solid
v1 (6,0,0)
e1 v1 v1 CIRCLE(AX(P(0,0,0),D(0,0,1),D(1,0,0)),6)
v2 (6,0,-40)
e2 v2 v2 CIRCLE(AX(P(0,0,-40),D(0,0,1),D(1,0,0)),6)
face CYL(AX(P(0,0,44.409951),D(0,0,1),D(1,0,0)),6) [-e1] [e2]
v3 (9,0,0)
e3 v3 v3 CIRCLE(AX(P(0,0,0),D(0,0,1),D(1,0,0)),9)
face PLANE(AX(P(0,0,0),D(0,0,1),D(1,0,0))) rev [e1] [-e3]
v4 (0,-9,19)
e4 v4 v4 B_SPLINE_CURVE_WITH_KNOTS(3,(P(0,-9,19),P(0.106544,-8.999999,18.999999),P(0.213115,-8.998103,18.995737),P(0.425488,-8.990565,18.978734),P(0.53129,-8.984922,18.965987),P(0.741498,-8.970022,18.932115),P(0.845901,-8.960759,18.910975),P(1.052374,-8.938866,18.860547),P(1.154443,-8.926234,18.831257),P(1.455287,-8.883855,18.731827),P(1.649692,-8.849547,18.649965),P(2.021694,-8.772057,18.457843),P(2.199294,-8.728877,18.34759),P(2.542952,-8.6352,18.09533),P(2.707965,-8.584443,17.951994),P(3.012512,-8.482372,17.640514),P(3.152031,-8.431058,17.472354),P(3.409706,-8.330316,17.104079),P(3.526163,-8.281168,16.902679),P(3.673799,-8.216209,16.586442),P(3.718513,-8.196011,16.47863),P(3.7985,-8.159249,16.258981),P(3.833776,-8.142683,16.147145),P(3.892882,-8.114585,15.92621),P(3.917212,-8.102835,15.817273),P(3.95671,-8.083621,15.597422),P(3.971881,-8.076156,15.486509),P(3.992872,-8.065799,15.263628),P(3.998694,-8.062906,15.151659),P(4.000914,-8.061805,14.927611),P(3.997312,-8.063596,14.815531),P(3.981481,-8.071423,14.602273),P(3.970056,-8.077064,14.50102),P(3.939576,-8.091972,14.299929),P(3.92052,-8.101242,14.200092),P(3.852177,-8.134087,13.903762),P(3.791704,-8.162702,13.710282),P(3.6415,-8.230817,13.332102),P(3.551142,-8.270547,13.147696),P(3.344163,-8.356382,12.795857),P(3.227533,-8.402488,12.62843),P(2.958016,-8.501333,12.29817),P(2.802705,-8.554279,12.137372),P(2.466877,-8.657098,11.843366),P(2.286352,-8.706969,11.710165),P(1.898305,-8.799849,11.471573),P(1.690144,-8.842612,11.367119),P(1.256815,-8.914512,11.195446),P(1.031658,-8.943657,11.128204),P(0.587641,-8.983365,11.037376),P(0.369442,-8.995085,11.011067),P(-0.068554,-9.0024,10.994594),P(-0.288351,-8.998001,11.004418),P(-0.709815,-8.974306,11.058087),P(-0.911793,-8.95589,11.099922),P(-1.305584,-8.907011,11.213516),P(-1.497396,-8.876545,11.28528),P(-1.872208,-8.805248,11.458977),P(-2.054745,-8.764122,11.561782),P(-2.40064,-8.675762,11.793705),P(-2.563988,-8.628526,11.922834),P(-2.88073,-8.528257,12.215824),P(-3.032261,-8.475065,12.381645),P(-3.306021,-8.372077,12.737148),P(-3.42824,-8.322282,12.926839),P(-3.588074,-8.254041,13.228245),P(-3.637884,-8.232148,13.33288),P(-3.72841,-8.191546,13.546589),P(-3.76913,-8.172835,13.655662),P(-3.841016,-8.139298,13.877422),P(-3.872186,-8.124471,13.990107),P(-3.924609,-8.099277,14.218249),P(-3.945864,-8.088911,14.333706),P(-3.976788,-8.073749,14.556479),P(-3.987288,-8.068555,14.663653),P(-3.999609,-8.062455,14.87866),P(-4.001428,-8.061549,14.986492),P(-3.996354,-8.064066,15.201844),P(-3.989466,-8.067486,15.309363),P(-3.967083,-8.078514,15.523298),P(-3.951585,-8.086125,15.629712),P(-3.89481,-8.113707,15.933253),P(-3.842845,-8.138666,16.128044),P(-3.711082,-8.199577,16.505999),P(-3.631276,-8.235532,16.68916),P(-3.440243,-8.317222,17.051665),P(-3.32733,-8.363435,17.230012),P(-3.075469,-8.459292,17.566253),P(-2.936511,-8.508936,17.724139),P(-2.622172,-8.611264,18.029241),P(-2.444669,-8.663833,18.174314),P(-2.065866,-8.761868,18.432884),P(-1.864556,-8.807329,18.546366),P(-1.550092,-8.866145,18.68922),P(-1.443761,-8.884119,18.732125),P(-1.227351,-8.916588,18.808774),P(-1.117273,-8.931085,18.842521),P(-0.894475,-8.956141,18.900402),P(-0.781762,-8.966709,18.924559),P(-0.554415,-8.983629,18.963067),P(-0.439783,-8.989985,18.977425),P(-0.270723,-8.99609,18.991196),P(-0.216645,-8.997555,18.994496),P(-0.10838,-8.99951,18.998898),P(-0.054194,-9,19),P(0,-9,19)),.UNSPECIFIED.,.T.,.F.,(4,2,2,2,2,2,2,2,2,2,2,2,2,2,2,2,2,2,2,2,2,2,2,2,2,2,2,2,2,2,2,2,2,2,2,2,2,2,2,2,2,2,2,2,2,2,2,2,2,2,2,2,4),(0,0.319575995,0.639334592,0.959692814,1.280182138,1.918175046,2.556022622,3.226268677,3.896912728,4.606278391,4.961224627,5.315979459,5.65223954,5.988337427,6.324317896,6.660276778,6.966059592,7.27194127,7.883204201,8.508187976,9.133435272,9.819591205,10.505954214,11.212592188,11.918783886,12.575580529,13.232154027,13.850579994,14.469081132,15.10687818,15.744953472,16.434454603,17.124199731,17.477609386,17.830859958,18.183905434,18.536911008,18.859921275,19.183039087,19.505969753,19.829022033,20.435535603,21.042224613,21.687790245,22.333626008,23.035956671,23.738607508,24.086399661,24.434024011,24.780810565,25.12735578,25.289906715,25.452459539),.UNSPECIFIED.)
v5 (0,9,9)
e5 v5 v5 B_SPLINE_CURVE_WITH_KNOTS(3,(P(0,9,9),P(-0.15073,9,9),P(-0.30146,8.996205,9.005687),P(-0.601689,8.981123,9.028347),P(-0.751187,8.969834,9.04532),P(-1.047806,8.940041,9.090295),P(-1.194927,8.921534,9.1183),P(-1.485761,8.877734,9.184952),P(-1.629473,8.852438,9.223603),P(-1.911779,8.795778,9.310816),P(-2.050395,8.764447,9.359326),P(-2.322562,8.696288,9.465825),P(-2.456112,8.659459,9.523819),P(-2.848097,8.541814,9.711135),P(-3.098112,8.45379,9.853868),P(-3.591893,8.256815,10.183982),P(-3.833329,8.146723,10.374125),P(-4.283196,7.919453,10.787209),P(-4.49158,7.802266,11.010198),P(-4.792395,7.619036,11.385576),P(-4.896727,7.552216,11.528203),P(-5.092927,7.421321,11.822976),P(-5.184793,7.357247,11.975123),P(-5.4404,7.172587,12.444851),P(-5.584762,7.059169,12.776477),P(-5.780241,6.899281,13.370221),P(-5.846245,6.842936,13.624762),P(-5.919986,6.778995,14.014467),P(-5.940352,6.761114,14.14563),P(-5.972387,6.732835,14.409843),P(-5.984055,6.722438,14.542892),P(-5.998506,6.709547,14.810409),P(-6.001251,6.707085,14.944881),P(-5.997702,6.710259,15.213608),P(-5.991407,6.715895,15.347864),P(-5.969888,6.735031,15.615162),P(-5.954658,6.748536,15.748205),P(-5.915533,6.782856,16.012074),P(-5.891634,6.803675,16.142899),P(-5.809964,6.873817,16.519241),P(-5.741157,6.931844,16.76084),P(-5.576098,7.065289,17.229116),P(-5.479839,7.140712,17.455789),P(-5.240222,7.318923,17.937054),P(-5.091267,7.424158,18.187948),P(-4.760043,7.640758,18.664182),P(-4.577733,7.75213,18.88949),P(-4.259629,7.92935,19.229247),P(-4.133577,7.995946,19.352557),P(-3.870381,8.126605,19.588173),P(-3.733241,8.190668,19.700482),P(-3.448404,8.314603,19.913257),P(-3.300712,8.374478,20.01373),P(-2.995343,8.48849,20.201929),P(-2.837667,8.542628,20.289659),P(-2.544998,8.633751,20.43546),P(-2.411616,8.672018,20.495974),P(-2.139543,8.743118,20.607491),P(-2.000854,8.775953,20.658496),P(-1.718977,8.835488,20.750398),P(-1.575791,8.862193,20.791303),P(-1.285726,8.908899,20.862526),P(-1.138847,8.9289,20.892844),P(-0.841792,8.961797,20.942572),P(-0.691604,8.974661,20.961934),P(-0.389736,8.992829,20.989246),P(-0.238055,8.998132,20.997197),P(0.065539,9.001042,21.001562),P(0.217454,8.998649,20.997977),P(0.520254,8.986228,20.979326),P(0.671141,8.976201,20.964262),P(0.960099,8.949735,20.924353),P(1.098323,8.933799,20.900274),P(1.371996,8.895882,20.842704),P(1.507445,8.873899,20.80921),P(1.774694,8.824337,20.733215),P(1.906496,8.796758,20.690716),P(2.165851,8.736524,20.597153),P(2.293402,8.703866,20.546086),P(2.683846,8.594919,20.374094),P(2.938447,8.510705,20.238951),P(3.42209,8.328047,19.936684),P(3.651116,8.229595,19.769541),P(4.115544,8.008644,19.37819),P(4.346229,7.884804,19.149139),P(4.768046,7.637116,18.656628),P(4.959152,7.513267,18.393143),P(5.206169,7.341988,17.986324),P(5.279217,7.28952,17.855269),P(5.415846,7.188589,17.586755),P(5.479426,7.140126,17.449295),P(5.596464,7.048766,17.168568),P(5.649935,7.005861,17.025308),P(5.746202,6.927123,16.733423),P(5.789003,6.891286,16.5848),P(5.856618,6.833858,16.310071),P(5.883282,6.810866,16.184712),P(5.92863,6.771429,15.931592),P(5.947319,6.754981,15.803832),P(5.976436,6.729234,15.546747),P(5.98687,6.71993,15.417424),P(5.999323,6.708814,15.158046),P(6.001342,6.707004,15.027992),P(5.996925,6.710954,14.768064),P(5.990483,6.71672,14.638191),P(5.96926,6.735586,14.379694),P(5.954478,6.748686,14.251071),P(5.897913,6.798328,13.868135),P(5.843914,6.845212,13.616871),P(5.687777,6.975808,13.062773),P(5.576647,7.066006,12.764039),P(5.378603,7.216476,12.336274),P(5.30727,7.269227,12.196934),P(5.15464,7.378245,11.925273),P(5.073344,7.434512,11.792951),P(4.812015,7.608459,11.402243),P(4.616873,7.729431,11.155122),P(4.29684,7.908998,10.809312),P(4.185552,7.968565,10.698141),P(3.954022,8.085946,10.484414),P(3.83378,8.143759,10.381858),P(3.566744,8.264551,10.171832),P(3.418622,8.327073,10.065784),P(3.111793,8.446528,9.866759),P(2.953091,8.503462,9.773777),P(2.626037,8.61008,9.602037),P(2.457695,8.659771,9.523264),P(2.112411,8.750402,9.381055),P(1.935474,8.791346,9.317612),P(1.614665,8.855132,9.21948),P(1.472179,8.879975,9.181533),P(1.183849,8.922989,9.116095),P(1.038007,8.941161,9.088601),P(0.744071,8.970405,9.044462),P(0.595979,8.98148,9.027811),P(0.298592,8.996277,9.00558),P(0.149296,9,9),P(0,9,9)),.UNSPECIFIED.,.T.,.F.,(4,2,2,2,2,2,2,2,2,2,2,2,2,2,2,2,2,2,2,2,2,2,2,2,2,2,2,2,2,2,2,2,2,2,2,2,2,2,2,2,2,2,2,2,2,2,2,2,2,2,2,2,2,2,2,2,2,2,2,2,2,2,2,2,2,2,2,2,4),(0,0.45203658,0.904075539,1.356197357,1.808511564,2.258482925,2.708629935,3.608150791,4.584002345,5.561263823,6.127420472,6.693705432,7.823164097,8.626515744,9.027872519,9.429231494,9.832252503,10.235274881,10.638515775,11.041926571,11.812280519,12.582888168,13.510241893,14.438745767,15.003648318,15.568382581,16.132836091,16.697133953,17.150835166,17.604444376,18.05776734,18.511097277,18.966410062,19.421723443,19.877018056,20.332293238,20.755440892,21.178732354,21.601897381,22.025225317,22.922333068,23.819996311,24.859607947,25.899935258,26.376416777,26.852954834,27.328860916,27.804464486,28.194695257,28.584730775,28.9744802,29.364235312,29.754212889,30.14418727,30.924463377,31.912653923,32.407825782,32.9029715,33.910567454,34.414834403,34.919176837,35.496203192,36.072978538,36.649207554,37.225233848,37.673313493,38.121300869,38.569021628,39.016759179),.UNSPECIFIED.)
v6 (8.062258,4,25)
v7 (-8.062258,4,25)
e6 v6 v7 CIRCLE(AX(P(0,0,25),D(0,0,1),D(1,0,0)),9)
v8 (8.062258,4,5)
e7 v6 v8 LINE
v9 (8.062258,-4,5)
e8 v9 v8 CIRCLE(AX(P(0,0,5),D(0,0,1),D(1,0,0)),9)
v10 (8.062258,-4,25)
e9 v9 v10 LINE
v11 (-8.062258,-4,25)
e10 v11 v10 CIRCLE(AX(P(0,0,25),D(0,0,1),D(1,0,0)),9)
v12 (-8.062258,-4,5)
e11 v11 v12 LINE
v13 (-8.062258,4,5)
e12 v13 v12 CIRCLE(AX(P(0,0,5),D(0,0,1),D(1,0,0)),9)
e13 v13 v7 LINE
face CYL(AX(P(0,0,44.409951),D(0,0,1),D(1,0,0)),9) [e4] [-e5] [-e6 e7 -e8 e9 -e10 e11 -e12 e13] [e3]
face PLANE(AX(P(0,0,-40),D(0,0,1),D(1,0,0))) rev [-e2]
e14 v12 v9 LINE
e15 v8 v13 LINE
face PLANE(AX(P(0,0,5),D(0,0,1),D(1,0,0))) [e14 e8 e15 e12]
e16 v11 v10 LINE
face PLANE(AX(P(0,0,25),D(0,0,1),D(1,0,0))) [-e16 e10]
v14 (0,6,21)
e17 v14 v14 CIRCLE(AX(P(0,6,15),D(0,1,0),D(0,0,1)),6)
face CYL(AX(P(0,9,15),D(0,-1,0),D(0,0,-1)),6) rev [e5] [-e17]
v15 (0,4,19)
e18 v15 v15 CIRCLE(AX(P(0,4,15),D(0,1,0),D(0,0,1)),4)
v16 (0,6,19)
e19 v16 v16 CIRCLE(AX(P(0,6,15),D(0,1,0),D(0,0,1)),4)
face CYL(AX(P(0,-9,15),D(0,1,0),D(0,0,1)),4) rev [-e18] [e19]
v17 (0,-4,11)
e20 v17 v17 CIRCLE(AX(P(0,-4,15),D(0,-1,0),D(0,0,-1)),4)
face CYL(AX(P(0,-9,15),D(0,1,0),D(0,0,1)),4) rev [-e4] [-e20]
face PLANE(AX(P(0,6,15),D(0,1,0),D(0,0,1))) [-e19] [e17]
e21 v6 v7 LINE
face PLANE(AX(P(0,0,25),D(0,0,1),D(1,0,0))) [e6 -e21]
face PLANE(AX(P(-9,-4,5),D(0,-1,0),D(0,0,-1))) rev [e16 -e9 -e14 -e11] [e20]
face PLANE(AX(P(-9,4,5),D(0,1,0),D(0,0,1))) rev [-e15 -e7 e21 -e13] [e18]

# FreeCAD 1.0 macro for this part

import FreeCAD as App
import Part
import Sketcher
Q = App.Units.Quantity


def add_polygon(sketch, points):
    """Adds a closed chain of lines whose ends are joined by coincident constraints."""
    first, n = sketch.GeometryCount, len(points)
    for a, b in zip(points, points[1:] + points[:1]):
        sketch.addGeometry(Part.LineSegment(App.Vector(*a, 0), App.Vector(*b, 0)), False)
    for i in range(n):
        sketch.addConstraint(Sketcher.Constraint("Coincident", first + i, 2, first + (i + 1) % n, 1))

doc = App.newDocument("Part")
body = doc.addObject("PartDesign::Body", "Body")

sketch1 = body.newObject("Sketcher::SketchObject", "Sketch")
sketch1.AttachmentSupport = (doc.getObject("XZ_Plane"), [""])
sketch1.MapMode = "FlatFace"
add_polygon(sketch1, [(0, -40), (0, 25), (9, 25), (9, 0), (6, 0), (6, -40)])
sketch1.addConstraint([
    Sketcher.Constraint("Vertical", 0),
    Sketcher.Constraint("Horizontal", 1),
    Sketcher.Constraint("Vertical", 2),
    Sketcher.Constraint("Horizontal", 3),
    Sketcher.Constraint("Vertical", 4),
    Sketcher.Constraint("Horizontal", 5),
    Sketcher.Constraint("PointOnObject", 0, 2, -2),
    Sketcher.Constraint("PointOnObject", 2, 2, -1),
    Sketcher.Constraint("DistanceX", 1, 1, 1, 2, Q("9 mm")),
    Sketcher.Constraint("DistanceX", 3, 2, 3, 1, Q("3 mm")),
    Sketcher.Constraint("DistanceY", 0, 1, 0, 2, Q("65 mm")),
    Sketcher.Constraint("DistanceY", 2, 2, 2, 1, Q("25 mm")),
])
revolution = body.newObject("PartDesign::Revolution", "Revolution")
revolution.Profile = sketch1
revolution.ReferenceAxis = (sketch1, ["V_Axis"])
revolution.Angle = 360

sketch2 = body.newObject("Sketcher::SketchObject", "Sketch001")
sketch2.AttachmentSupport = (doc.getObject("XY_Plane"), [""])
sketch2.MapMode = "FlatFace"
sketch2.AttachmentOffset = App.Placement(App.Vector(0, 0, 25), App.Rotation())
add_polygon(sketch2, [(-9, 4), (-9, -4), (9, -4), (9, 4)])
sketch2.addConstraint([
    Sketcher.Constraint("Vertical", 0),
    Sketcher.Constraint("Horizontal", 1),
    Sketcher.Constraint("Vertical", 2),
    Sketcher.Constraint("Horizontal", 3),
    Sketcher.Constraint("Symmetric", 0, 2, 2, 2, -1, 1),
    Sketcher.Constraint("DistanceX", 1, 1, 1, 2, Q("18 mm")),
    Sketcher.Constraint("DistanceY", 0, 2, 0, 1, Q("8 mm")),
])
pocket1 = body.newObject("PartDesign::Pocket", "Pocket")
pocket1.Profile = sketch2
pocket1.Length = 20

sketch3 = body.newObject("Sketcher::SketchObject", "Sketch002")
sketch3.AttachmentSupport = (doc.getObject("XZ_Plane"), [""])
sketch3.MapMode = "FlatFace"
sketch3.addGeometry(Part.Circle(App.Vector(0, 15, 0), App.Vector(0, 0, 1), 4), False)
sketch3.addConstraint([
    Sketcher.Constraint("PointOnObject", 0, 3, -2),
    Sketcher.Constraint("Diameter", 0, Q("8 mm")),
    Sketcher.Constraint("DistanceY", -1, 1, 0, 3, Q("15 mm")),
])
pocket2 = body.newObject("PartDesign::Pocket", "Pocket001")
pocket2.Profile = sketch3
pocket2.Type = "ThroughAll"
pocket2.Midplane = True

sketch4 = body.newObject("Sketcher::SketchObject", "Sketch003")
sketch4.AttachmentSupport = (doc.getObject("XZ_Plane"), [""])
sketch4.MapMode = "FlatFace"
sketch4.AttachmentOffset = App.Placement(App.Vector(0, 0, -6), App.Rotation())
sketch4.addGeometry([
    Part.Circle(App.Vector(0, 15, 0), App.Vector(0, 0, 1), 6),
    Part.Circle(App.Vector(0, 15, 0), App.Vector(0, 0, 1), 4),
], False)
sketch4.addConstraint([
    Sketcher.Constraint("Coincident", 1, 3, 0, 3),
    Sketcher.Constraint("PointOnObject", 0, 3, -2),
    Sketcher.Constraint("Diameter", 0, Q("12 mm")),
    Sketcher.Constraint("Diameter", 1, Q("8 mm")),
    Sketcher.Constraint("DistanceY", -1, 1, 0, 3, Q("15 mm")),
])
pocket3 = body.newObject("PartDesign::Pocket", "Pocket002")
pocket3.Profile = sketch4
pocket3.Type = "ThroughAll"

doc.recompute()
